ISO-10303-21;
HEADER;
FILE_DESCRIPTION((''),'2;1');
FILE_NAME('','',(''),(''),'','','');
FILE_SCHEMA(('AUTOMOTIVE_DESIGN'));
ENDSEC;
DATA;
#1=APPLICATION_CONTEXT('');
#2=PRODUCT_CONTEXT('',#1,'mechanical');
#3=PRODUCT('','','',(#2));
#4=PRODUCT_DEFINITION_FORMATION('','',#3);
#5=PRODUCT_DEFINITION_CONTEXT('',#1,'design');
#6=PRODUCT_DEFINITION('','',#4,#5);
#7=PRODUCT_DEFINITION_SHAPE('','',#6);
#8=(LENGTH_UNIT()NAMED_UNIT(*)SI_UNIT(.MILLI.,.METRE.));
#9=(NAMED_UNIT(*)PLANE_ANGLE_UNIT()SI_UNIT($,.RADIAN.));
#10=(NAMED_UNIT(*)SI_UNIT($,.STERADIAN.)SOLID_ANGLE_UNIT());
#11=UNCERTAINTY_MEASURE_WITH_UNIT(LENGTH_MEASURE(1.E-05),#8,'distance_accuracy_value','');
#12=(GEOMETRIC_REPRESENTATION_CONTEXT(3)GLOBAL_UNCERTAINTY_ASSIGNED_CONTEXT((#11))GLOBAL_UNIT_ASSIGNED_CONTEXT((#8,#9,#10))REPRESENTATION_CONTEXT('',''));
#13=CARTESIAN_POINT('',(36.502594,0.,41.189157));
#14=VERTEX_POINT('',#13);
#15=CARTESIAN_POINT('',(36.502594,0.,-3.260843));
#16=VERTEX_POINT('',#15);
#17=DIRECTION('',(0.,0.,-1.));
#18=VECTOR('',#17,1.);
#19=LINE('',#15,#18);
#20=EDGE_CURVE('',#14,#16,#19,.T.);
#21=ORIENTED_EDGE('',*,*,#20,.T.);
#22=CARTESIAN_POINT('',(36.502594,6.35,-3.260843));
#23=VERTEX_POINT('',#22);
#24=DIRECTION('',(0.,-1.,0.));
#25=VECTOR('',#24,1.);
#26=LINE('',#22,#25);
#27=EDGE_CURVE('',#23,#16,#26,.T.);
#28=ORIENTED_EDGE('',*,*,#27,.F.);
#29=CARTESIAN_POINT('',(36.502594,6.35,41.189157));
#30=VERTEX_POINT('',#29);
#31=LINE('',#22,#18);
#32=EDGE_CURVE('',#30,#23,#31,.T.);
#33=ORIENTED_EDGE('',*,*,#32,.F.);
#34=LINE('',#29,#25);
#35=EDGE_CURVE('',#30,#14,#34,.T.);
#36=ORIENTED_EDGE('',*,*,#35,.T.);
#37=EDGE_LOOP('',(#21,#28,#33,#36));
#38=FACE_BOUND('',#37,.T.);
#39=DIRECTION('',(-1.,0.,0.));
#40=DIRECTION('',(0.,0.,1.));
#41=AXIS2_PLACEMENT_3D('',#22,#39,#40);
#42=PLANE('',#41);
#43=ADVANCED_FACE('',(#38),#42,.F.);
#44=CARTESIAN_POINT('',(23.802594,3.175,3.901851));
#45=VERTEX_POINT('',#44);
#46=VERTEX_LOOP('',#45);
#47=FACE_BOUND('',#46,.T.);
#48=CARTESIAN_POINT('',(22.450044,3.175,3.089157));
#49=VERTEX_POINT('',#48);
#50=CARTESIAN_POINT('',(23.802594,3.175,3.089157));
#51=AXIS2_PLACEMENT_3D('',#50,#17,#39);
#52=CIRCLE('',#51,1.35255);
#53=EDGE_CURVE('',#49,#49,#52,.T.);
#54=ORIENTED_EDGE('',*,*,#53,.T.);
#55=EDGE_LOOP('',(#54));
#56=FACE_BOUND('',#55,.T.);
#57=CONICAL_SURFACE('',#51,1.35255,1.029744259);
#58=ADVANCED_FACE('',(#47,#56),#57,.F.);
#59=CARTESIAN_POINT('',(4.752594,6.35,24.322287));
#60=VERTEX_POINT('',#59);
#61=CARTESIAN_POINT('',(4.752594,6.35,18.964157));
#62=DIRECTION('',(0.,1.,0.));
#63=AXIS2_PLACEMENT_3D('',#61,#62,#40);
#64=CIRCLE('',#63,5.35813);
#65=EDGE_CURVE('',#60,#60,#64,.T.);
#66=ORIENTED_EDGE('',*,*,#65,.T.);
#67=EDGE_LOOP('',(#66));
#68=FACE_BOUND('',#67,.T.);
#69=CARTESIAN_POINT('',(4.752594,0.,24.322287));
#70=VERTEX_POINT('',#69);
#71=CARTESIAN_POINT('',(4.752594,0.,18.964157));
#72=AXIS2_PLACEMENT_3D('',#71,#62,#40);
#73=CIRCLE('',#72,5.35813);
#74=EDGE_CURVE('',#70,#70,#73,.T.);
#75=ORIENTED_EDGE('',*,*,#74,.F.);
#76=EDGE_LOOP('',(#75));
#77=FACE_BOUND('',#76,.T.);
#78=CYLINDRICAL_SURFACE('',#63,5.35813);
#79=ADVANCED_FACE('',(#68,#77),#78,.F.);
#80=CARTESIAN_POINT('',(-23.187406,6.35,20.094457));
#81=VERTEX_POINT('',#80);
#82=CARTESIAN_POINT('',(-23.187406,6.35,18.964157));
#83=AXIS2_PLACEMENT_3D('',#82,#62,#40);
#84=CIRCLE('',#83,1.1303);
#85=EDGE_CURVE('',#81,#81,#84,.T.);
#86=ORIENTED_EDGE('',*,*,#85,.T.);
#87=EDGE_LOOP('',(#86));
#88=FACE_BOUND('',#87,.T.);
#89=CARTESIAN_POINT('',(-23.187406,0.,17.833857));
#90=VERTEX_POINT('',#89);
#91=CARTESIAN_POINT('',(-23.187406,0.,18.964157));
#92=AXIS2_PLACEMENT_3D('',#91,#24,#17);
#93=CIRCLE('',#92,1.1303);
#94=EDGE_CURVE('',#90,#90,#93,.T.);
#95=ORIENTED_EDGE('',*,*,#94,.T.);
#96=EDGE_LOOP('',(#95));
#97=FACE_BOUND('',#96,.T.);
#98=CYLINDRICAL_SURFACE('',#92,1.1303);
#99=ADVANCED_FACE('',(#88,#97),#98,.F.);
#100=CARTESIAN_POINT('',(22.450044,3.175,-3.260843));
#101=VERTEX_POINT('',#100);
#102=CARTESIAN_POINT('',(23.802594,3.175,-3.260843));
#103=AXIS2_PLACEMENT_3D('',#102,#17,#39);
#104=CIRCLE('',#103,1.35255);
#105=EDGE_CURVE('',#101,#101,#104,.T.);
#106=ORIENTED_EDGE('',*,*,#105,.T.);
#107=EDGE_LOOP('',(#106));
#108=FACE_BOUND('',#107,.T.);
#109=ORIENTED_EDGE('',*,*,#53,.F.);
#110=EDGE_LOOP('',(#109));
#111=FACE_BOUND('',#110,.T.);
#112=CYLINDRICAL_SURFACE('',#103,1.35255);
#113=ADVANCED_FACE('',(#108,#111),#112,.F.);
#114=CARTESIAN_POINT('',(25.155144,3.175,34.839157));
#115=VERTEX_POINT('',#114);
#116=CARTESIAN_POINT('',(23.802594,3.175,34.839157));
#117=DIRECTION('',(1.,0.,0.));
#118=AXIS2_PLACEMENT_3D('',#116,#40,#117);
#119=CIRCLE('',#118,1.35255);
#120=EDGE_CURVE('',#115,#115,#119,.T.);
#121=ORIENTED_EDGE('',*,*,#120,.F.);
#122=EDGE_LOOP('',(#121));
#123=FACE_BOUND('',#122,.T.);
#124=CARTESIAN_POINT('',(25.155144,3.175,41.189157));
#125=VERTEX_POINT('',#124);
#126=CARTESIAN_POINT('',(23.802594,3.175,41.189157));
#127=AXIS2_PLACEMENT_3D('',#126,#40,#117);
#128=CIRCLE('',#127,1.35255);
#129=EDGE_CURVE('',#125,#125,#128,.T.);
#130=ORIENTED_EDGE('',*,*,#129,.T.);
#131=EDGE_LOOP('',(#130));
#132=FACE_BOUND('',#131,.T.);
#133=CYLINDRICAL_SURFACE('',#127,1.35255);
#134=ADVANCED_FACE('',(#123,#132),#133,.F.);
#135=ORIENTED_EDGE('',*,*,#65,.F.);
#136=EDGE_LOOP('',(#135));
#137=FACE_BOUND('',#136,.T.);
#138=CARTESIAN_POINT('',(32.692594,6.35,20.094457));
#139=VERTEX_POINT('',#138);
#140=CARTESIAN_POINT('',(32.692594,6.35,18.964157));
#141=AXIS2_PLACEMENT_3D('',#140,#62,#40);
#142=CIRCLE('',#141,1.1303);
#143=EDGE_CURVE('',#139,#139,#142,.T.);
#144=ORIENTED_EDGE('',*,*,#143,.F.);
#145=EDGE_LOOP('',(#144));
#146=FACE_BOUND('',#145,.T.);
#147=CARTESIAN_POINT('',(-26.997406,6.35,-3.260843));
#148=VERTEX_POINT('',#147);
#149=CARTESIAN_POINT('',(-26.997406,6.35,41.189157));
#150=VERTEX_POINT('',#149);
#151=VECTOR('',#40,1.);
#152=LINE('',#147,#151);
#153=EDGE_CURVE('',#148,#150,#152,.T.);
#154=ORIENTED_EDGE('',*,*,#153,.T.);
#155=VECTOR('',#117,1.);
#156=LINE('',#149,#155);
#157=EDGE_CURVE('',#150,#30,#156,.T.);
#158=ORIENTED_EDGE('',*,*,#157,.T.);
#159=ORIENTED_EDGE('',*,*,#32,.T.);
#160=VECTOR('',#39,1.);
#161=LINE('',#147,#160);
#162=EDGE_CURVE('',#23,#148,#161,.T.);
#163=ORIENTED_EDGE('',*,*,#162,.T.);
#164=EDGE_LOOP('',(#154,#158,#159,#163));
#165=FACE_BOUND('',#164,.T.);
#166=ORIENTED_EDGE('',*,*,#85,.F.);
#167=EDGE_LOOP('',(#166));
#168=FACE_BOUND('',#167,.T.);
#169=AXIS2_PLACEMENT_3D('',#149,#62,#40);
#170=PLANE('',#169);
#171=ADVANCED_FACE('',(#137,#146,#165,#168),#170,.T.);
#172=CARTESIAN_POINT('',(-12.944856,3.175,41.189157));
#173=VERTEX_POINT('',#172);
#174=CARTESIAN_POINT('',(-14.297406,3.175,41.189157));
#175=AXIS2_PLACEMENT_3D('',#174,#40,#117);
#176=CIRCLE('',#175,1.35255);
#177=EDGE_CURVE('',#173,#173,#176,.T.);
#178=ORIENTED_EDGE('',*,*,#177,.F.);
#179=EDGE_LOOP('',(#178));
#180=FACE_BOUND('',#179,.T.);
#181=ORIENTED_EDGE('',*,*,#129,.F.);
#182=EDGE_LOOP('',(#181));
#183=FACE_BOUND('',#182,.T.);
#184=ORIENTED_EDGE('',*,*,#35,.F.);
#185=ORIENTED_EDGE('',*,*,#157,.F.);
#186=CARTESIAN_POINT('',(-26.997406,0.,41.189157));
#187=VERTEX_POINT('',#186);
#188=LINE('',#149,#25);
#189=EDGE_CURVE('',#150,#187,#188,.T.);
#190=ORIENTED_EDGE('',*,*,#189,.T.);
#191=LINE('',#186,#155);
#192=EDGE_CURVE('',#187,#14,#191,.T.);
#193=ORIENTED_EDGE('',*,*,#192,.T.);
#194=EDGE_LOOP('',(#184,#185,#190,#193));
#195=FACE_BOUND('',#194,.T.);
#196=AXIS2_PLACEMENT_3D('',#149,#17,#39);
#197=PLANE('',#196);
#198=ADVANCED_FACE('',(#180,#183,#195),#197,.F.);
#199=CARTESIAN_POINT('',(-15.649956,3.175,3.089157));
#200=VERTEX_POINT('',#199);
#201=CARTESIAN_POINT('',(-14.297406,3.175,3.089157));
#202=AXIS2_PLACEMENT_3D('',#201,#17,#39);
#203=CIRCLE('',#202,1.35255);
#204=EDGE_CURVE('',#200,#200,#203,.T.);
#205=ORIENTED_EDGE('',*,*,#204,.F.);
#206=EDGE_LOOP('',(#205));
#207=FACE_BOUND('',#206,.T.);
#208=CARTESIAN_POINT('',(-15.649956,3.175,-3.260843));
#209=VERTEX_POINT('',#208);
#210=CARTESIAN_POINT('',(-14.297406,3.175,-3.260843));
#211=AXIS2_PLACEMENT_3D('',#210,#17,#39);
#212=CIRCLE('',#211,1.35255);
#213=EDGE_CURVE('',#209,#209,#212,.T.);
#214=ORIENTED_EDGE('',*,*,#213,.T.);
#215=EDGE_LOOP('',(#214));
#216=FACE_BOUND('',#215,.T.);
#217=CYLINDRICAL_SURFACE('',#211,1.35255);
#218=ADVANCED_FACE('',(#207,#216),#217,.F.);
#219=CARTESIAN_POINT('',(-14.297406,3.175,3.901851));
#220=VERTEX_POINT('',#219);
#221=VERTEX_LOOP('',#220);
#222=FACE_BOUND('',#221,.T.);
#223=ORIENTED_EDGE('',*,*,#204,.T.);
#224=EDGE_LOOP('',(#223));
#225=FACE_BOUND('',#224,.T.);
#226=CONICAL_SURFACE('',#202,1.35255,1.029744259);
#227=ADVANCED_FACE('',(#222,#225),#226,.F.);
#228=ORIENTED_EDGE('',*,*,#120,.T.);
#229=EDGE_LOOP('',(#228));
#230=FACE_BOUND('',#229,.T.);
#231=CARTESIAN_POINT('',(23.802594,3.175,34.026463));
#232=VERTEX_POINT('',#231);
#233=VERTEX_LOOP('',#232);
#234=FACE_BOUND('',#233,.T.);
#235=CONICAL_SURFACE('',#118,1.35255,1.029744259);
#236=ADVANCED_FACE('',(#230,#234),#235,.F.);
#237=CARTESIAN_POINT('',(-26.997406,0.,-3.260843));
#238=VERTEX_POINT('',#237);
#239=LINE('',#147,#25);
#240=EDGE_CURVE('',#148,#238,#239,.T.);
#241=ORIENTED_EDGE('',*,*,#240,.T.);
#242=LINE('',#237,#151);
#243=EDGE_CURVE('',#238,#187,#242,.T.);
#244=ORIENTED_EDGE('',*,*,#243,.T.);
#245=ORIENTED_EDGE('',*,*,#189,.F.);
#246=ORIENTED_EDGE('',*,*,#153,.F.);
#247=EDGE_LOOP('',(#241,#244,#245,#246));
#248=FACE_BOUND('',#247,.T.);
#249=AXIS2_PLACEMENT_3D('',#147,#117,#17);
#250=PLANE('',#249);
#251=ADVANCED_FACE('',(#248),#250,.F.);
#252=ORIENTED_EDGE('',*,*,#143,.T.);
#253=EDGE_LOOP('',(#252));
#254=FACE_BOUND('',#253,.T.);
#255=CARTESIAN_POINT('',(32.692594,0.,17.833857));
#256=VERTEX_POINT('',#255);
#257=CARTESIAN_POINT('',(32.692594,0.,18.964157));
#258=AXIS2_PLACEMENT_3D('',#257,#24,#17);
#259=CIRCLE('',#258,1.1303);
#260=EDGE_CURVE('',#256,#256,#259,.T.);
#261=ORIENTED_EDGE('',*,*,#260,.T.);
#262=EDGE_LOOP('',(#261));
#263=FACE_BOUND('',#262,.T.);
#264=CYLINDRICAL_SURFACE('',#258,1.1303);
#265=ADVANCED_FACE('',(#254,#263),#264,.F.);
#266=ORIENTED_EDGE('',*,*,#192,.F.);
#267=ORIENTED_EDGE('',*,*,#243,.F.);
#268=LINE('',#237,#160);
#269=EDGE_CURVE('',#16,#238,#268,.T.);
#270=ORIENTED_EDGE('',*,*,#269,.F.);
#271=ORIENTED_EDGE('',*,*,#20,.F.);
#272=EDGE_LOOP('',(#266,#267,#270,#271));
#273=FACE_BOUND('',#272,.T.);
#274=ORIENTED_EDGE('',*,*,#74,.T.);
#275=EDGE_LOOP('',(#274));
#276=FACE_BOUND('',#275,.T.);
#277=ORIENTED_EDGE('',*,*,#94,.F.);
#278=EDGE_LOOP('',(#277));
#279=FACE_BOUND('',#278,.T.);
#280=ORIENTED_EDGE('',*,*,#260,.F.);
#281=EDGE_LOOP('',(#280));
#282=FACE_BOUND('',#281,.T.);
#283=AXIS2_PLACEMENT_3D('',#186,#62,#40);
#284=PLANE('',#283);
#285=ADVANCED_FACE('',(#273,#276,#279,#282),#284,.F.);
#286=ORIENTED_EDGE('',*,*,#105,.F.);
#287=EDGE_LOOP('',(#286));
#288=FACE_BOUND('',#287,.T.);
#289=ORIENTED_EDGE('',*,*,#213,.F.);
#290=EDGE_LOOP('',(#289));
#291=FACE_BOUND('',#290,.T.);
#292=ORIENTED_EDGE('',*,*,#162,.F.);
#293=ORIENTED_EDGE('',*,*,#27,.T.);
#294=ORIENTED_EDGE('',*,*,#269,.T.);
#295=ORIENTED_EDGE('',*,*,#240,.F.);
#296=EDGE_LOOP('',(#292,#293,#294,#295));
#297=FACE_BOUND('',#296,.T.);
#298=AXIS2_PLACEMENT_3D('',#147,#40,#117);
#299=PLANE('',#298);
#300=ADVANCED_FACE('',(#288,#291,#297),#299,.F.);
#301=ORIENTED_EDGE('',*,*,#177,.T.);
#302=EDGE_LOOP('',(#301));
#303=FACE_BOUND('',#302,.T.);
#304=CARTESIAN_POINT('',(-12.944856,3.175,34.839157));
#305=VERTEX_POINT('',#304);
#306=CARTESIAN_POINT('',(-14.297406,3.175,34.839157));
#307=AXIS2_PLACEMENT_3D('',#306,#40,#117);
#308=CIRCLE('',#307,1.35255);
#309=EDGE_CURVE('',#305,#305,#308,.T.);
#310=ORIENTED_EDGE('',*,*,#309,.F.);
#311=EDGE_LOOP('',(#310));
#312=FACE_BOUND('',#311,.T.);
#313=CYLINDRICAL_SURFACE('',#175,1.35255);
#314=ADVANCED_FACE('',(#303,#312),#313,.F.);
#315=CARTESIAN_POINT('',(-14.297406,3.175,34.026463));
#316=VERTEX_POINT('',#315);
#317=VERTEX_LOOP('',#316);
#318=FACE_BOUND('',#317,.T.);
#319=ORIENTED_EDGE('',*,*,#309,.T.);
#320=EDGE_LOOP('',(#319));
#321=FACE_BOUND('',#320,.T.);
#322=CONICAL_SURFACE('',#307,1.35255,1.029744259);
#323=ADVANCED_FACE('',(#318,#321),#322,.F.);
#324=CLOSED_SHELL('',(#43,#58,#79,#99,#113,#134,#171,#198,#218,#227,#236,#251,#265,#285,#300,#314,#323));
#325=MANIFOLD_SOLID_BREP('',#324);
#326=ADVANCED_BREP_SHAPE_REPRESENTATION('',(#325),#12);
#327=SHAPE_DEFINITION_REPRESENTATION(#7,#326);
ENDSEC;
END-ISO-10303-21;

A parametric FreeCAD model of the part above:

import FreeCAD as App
import Part
import Sketcher
Q = App.Units.Quantity


def add_polygon(sketch, points):
    """Adds a closed chain of lines whose ends are joined by coincident constraints."""
    first, n = sketch.GeometryCount, len(points)
    for a, b in zip(points, points[1:] + points[:1]):
        sketch.addGeometry(Part.LineSegment(App.Vector(*a, 0), App.Vector(*b, 0)), False)
    for i in range(n):
        sketch.addConstraint(Sketcher.Constraint("Coincident", first + i, 2, first + (i + 1) % n, 1))

doc = App.newDocument("Part")
body = doc.addObject("PartDesign::Body", "Body")

# Sketch on XZ plane
sketch1 = doc.addObject("Sketcher::SketchObject", "Sketch")
body.addObject(sketch1)
sketch1.AttachmentSupport = (doc.XZ_Plane, [""])
sketch1.MapMode = "FlatFace"
add_polygon(sketch1, [(-27, -3), (-27, 41), (37, 41), (37, -3)])  # lines 0-3
sketch1.addConstraint([
    Sketcher.Constraint("Vertical", 0),
    Sketcher.Constraint("Horizontal", 1),
    Sketcher.Constraint("Vertical", 2),
    Sketcher.Constraint("Horizontal", 3),
    Sketcher.Constraint("DistanceX", 1, 1, 1, 2, Q("2.5 in")),
    Sketcher.Constraint("DistanceY", 0, 1, 0, 2, Q("1.75 in")),
    Sketcher.Constraint("DistanceX", 0, 2, -1, 1, Q("26.997406 mm")),
    Sketcher.Constraint("DistanceY", -1, 1, 0, 2, Q("41.189157 mm")),
])
pad1 = doc.addObject("PartDesign::Pad", "Pad")
body.addObject(pad1)
pad1.Profile = sketch1
pad1.Length = Q("0.25 in")
pad1.Reversed = True

# Sketch on YZ plane
sketch2 = doc.addObject("Sketcher::SketchObject", "Sketch001")
body.addObject(sketch2)
sketch2.AttachmentSupport = (doc.YZ_Plane, [""])
sketch2.MapMode = "FlatFace"
sketch2.AttachmentOffset = App.Placement(App.Vector(0, 0, -23.187406), App.Rotation())
add_polygon(sketch2, [(13.4, 19), (0, 19), (0, 17.8), (12.7, 17.8)])  # lines 0-3
sketch2.addGeometry(Part.LineSegment(App.Vector(0, 19, 0), App.Vector(13.4, 19, 0)), True)  # axis
sketch2.addConstraint([
    Sketcher.Constraint("Horizontal", 0),
    Sketcher.Constraint("Vertical", 1),
    Sketcher.Constraint("Horizontal", 2),
    Sketcher.Constraint("Horizontal", 4),
    Sketcher.Constraint("Coincident", 4, 1, 0, 2),
    Sketcher.Constraint("PointOnObject", 0, 2, -2),
    Sketcher.Constraint("Equal", 0, 4),
    Sketcher.Constraint("DistanceX", 2, 1, 2, 2, Q("0.5 in")),
    Sketcher.Constraint("Angle", 3, Q("59 deg")),
    Sketcher.Constraint("DistanceY", 1, 2, 1, 1, Q("0.0445 in")),
    Sketcher.Constraint("DistanceY", -1, 1, 0, 2, Q("18.964157 mm")),
])
groove = doc.addObject("PartDesign::Groove", "Groove")
body.addObject(groove)
groove.Profile = sketch2
groove.ReferenceAxis = (sketch2, ["Axis0"])
groove.Angle = 360
doc.recompute()

linearpattern = doc.addObject("PartDesign::LinearPattern", "LinearPattern")
body.addObject(linearpattern)
linearpattern.Originals = [groove]
linearpattern.Direction = (doc.X_Axis, [""])
linearpattern.Mode = "offset"
linearpattern.Offset = Q("2.2 in")
linearpattern.Occurrences = 2
body.Tip = linearpattern

# Sketch on XY plane
sketch3 = doc.addObject("Sketcher::SketchObject", "Sketch002")
body.addObject(sketch3)
sketch3.AttachmentSupport = (doc.XY_Plane, [""])
sketch3.MapMode = "FlatFace"
sketch3.AttachmentOffset = App.Placement(App.Vector(0, 0, 41.189157), App.Rotation())
sketch3.addGeometry([
    Part.Circle(App.Vector(23.8, 3.2, 0), App.Vector(0, 0, 1), 1.4),
    Part.Circle(App.Vector(-14.3, 3.2, 0), App.Vector(0, 0, 1), 1.4),
], False)
sketch3.addConstraint([
    Sketcher.Constraint("Equal", 0, 1),
    Sketcher.Constraint("Horizontal", 0, 3, 1, 3),
    Sketcher.Constraint("Diameter", 0, Q("0.1065 in")),
    Sketcher.Constraint("DistanceX", 1, 3, 0, 3, Q("1.5 in")),
    Sketcher.Constraint("DistanceY", -1, 1, 0, 3, Q("0.125 in")),
    Sketcher.Constraint("DistanceX", -1, 1, 0, 3, Q("23.802594 mm")),
])
doc.recompute()
hole = doc.addObject("PartDesign::Hole", "Hole")
body.addObject(hole)
hole.Profile = sketch3
hole.ThreadType = "None"
hole.Diameter = Q("0.1065 in")
hole.DepthType = "Dimension"
hole.Depth = Q("0.25 in")
hole.DrillPoint = "Angled"
hole.DrillPointAngle = 118

# Sketch on XY plane
sketch4 = doc.addObject("Sketcher::SketchObject", "Sketch003")
body.addObject(sketch4)
sketch4.AttachmentSupport = (doc.XY_Plane, [""])
sketch4.MapMode = "FlatFace"
sketch4.AttachmentOffset = App.Placement(App.Vector(0, 0, -3.260843), App.Rotation())
sketch4.addGeometry([
    Part.Circle(App.Vector(-14.3, 3.2, 0), App.Vector(0, 0, 1), 1.4),
    Part.Circle(App.Vector(23.8, 3.2, 0), App.Vector(0, 0, 1), 1.4),
], False)
sketch4.addConstraint([
    Sketcher.Constraint("Equal", 0, 1),
    Sketcher.Constraint("Horizontal", 0, 3, 1, 3),
    Sketcher.Constraint("Diameter", 0, Q("0.1065 in")),
    Sketcher.Constraint("DistanceX", 0, 3, 1, 3, Q("1.5 in")),
    Sketcher.Constraint("DistanceY", -1, 1, 0, 3, Q("0.125 in")),
    Sketcher.Constraint("DistanceX", 0, 3, -1, 1, Q("14.297406 mm")),
])
doc.recompute()
hole2 = doc.addObject("PartDesign::Hole", "Hole001")
body.addObject(hole2)
hole2.Profile = sketch4
hole2.ThreadType = "None"
hole2.Diameter = Q("0.1065 in")
hole2.DepthType = "Dimension"
hole2.Depth = Q("0.25 in")
hole2.DrillPoint = "Angled"
hole2.DrillPointAngle = 118
hole2.Reversed = True

# Sketch on XZ plane
sketch5 = doc.addObject("Sketcher::SketchObject", "Sketch004")
body.addObject(sketch5)
sketch5.AttachmentSupport = (doc.XZ_Plane, [""])
sketch5.MapMode = "FlatFace"
sketch5.AttachmentOffset = App.Placement(App.Vector(0, 0, -0.25 * 25.4), App.Rotation())
sketch5.addGeometry(Part.Circle(App.Vector(5, 19, 0), App.Vector(0, 0, 1), 5), False)
sketch5.addConstraint([
    Sketcher.Constraint("Diameter", 0, Q("0.4219 in")),
    Sketcher.Constraint("DistanceX", -1, 1, 0, 3, Q("4.752594 mm")),
    Sketcher.Constraint("DistanceY", -1, 1, 0, 3, Q("18.964157 mm")),
])
doc.recompute()
hole3 = doc.addObject("PartDesign::Hole", "Hole002")
body.addObject(hole3)
hole3.Profile = sketch5
hole3.ThreadType = "None"
hole3.Diameter = Q("0.4219 in")
hole3.DepthType = "Dimension"
hole3.Depth = Q("0.25 in")
hole3.DrillPoint = "Angled"
hole3.DrillPointAngle = 118
hole3.Reversed = True

doc.recompute()
